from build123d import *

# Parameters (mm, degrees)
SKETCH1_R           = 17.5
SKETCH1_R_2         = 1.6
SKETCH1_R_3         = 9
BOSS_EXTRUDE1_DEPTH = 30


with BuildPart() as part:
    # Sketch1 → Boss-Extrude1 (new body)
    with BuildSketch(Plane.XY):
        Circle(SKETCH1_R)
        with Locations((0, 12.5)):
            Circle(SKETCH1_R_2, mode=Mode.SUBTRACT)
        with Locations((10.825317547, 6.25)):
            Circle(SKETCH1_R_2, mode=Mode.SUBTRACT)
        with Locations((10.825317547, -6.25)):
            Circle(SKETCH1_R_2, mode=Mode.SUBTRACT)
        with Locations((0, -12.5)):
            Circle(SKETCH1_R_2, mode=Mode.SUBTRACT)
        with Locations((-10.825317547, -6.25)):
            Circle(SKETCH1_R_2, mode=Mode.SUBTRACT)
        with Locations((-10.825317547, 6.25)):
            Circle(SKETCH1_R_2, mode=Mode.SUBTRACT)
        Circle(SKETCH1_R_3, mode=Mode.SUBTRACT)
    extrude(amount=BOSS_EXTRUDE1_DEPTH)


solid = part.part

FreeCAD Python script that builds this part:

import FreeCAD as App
import Part
import Sketcher
from FreeCAD import Vector
Q = App.Units.Quantity

doc = App.newDocument("Part")
body = doc.addObject("PartDesign::Body", "Body")

# Sketch on XY plane
sketch1 = doc.addObject("Sketcher::SketchObject", "Sketch")
body.addObject(sketch1)
sketch1.AttachmentSupport = (doc.XY_Plane, [""])
sketch1.MapMode = "FlatFace"
sketch1.addGeometry(Part.Circle(Vector(0, 0, 0), Vector(0, 0, 1), 17.5), False)
sketch1.addGeometry(Part.Circle(Vector(-10.825318, -6.25, 0), Vector(0, 0, 1), 1.6), False)
sketch1.addGeometry(Part.Circle(Vector(0, -12.5, 0), Vector(0, 0, 1), 1.6), False)
sketch1.addGeometry(Part.Circle(Vector(10.825318, -6.25, 0), Vector(0, 0, 1), 1.6), False)
sketch1.addGeometry(Part.Circle(Vector(-10.825318, 6.25, 0), Vector(0, 0, 1), 1.6), False)
sketch1.addGeometry(Part.Circle(Vector(0, 0, 0), Vector(0, 0, 1), 9), False)
sketch1.addGeometry(Part.Circle(Vector(10.825318, 6.25, 0), Vector(0, 0, 1), 1.6), False)
sketch1.addGeometry(Part.Circle(Vector(0, 12.5, 0), Vector(0, 0, 1), 1.6), False)
sketch1.addConstraint(Sketcher.Constraint("Coincident", 0, 3, -1, 1))
sketch1.addConstraint(Sketcher.Constraint("Coincident", 5, 3, -1, 1))
sketch1.addConstraint(Sketcher.Constraint("Equal", 1, 2))
sketch1.addConstraint(Sketcher.Constraint("Equal", 2, 3))
sketch1.addConstraint(Sketcher.Constraint("Equal", 3, 4))
sketch1.addConstraint(Sketcher.Constraint("Equal", 4, 6))
sketch1.addConstraint(Sketcher.Constraint("Equal", 6, 7))
sketch1.addConstraint(Sketcher.Constraint("Symmetric", 3, 3, 4, 3, -1, 1))
sketch1.addConstraint(Sketcher.Constraint("Symmetric", 1, 3, 6, 3, -1, 1))
sketch1.addConstraint(Sketcher.Constraint("Symmetric", 2, 3, 7, 3, -1, 1))
sketch1.addConstraint(Sketcher.Constraint("Symmetric", 1, 3, 3, 3, -2))
sketch1.addConstraint(Sketcher.Constraint("PointOnObject", 2, 3, -2))
sketch1.addConstraint(Sketcher.Constraint("Diameter", 0, Q("35 mm")))
sketch1.addConstraint(Sketcher.Constraint("Diameter", 5, Q("18 mm")))
sketch1.addConstraint(Sketcher.Constraint("Diameter", 1, Q("3.2 mm")))
sketch1.addConstraint(Sketcher.Constraint("DistanceY", 2, 3, -1, 1, Q("12.5 mm")))
sketch1.addConstraint(Sketcher.Constraint("DistanceY", 1, 3, 4, 3, Q("12.5 mm")))
sketch1.addConstraint(Sketcher.Constraint("DistanceX", 1, 3, -1, 1, Q("10.825318 mm")))
pad1 = doc.addObject("PartDesign::Pad", "Pad")
body.addObject(pad1)
pad1.Profile = sketch1
pad1.Length = 30

doc.recompute()
